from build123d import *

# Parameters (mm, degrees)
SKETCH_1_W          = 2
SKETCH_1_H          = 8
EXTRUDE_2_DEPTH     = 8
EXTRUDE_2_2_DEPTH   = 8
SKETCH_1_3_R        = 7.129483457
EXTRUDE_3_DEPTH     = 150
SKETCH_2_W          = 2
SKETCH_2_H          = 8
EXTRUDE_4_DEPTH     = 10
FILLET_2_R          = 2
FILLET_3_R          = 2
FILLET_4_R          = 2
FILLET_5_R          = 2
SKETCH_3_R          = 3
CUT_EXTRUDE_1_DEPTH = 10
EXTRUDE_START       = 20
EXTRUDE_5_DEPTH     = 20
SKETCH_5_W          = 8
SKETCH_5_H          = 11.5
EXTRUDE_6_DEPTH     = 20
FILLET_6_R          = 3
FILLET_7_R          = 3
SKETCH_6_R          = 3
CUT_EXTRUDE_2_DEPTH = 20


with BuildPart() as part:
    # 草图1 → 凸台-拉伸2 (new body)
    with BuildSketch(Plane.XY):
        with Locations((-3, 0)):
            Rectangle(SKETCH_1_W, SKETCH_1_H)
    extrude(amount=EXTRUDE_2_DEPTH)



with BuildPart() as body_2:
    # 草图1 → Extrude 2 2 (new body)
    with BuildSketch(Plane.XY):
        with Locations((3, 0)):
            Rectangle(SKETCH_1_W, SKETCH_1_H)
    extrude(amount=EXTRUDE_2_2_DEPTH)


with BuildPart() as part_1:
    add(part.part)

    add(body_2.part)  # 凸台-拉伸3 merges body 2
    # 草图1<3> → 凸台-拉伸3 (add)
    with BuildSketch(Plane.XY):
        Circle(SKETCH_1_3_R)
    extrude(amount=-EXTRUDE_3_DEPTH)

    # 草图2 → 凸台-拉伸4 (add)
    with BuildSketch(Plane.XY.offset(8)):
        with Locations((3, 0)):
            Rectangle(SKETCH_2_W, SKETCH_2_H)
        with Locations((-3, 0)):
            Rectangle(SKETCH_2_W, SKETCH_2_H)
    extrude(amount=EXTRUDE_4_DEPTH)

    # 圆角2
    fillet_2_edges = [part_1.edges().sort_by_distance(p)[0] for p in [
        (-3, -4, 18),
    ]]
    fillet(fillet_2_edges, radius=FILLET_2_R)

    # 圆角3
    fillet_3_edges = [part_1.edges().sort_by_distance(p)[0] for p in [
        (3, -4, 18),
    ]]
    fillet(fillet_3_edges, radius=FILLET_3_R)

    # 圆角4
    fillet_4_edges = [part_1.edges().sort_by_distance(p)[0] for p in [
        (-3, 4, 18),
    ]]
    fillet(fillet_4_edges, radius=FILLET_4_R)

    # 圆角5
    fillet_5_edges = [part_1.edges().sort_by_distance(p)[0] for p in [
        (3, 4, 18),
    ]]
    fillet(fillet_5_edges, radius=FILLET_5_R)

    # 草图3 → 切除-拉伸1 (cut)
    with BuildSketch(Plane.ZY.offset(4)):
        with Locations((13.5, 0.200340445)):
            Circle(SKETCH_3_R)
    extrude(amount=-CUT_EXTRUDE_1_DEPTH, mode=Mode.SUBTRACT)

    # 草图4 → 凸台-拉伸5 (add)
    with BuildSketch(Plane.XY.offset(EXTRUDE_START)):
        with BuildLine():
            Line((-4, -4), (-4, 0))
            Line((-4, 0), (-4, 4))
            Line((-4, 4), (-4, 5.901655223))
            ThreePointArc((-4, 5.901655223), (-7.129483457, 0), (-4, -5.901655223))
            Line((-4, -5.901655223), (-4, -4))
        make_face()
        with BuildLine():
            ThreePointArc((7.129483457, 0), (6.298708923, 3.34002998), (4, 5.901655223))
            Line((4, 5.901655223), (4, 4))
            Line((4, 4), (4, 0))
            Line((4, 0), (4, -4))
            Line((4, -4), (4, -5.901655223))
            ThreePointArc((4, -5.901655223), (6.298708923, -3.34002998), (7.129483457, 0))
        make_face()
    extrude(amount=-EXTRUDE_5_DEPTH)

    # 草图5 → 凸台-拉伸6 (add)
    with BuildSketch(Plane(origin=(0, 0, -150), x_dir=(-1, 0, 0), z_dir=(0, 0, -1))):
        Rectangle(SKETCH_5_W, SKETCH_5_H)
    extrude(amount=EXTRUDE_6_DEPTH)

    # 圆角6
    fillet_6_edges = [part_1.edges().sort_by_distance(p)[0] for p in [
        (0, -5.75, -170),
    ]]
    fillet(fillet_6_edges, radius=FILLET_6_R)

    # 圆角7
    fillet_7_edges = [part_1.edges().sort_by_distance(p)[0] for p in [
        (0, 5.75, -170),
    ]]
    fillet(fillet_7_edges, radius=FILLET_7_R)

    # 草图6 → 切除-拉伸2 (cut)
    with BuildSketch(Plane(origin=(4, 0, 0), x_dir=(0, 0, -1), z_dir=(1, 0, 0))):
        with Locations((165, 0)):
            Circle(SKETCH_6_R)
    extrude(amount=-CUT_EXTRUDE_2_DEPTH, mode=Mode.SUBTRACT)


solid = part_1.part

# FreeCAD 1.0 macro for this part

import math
import FreeCAD as App
import Part
import Sketcher
from FreeCAD import Vector


def edges_at(feature, points):
    """Names of the edges that pass closest to the given points."""
    edges = feature.Shape.Edges
    near = lambda p: min(range(len(edges)), key=lambda i: edges[i].distToShape(Part.Vertex(*p))[0])
    return sorted({f"Edge{near(p) + 1}" for p in points})

doc = App.newDocument("Part")
body = doc.addObject("PartDesign::Body", "Body")

# Sketch on XY plane
sketch1 = doc.addObject("Sketcher::SketchObject", "Sketch")
body.addObject(sketch1)
sketch1.AttachmentSupport = (doc.XY_Plane, [""])
sketch1.MapMode = "FlatFace"
sketch1.addGeometry(Part.LineSegment(Vector(-4, 4, 0), Vector(-4, -4, 0)), False)
sketch1.addGeometry(Part.LineSegment(Vector(-4, -4, 0), Vector(-2, -4, 0)), False)
sketch1.addGeometry(Part.LineSegment(Vector(-2, -4, 0), Vector(-2, 4, 0)), False)
sketch1.addGeometry(Part.LineSegment(Vector(-2, 4, 0), Vector(-4, 4, 0)), False)
sketch1.addConstraint(Sketcher.Constraint("Coincident", 0, 2, 1, 1))
sketch1.addConstraint(Sketcher.Constraint("Coincident", 1, 2, 2, 1))
sketch1.addConstraint(Sketcher.Constraint("Coincident", 2, 2, 3, 1))
sketch1.addConstraint(Sketcher.Constraint("Coincident", 3, 2, 0, 1))
sketch1.addConstraint(Sketcher.Constraint("Vertical", 0))
sketch1.addConstraint(Sketcher.Constraint("Horizontal", 1))
sketch1.addConstraint(Sketcher.Constraint("Vertical", 2))
sketch1.addConstraint(Sketcher.Constraint("Horizontal", 3))
sketch1.addConstraint(Sketcher.Constraint("DistanceX", 1, 1, 1, 2, 2.0))
sketch1.addConstraint(Sketcher.Constraint("DistanceY", 0, 2, 0, 1, 8.0))
sketch1.addConstraint(Sketcher.Constraint("DistanceX", 0, 2, -1, 1, 4.0))
sketch1.addConstraint(Sketcher.Constraint("DistanceY", 0, 2, -1, 1, 4.0))
pad1 = doc.addObject("PartDesign::Pad", "Pad")
body.addObject(pad1)
pad1.Profile = sketch1
pad1.Length = 8
body2 = doc.addObject("PartDesign::Body", "Body001")

# Sketch on XY plane
sketch2 = doc.addObject("Sketcher::SketchObject", "Sketch001")
body2.addObject(sketch2)
sketch2.AttachmentSupport = (doc.getObject("XY_Plane001"), [""])
sketch2.MapMode = "FlatFace"
sketch2.addGeometry(Part.LineSegment(Vector(2, 4, 0), Vector(2, -4, 0)), False)
sketch2.addGeometry(Part.LineSegment(Vector(2, -4, 0), Vector(4, -4, 0)), False)
sketch2.addGeometry(Part.LineSegment(Vector(4, -4, 0), Vector(4, 4, 0)), False)
sketch2.addGeometry(Part.LineSegment(Vector(4, 4, 0), Vector(2, 4, 0)), False)
sketch2.addConstraint(Sketcher.Constraint("Coincident", 0, 2, 1, 1))
sketch2.addConstraint(Sketcher.Constraint("Coincident", 1, 2, 2, 1))
sketch2.addConstraint(Sketcher.Constraint("Coincident", 2, 2, 3, 1))
sketch2.addConstraint(Sketcher.Constraint("Coincident", 3, 2, 0, 1))
sketch2.addConstraint(Sketcher.Constraint("Vertical", 0))
sketch2.addConstraint(Sketcher.Constraint("Horizontal", 1))
sketch2.addConstraint(Sketcher.Constraint("Vertical", 2))
sketch2.addConstraint(Sketcher.Constraint("Horizontal", 3))
sketch2.addConstraint(Sketcher.Constraint("DistanceX", 1, 1, 1, 2, 2.0))
sketch2.addConstraint(Sketcher.Constraint("DistanceY", 0, 2, 0, 1, 8.0))
sketch2.addConstraint(Sketcher.Constraint("DistanceX", -1, 1, 0, 2, 2.0))
sketch2.addConstraint(Sketcher.Constraint("DistanceY", 0, 2, -1, 1, 4.0))
pad2 = doc.addObject("PartDesign::Pad", "Pad001")
body2.addObject(pad2)
pad2.Profile = sketch2
pad2.Length = 8
body.AllowCompound = True
doc.recompute()

boolean = doc.addObject("PartDesign::Boolean", "Boolean")
body.addObject(boolean)
boolean.Type = "Fuse"
boolean.addObjects([body2])

# Sketch on XY plane
sketch3 = doc.addObject("Sketcher::SketchObject", "Sketch002")
body.addObject(sketch3)
sketch3.AttachmentSupport = (doc.XY_Plane, [""])
sketch3.MapMode = "FlatFace"
sketch3.addGeometry(Part.Circle(Vector(0, 0, 0), Vector(0, 0, 1), 7), False)
sketch3.addConstraint(Sketcher.Constraint("Coincident", 0, 3, -1, 1))
sketch3.addConstraint(Sketcher.Constraint("Diameter", 0, 14.258967))
pad3 = doc.addObject("PartDesign::Pad", "Pad002")
body.addObject(pad3)
pad3.Profile = sketch3
pad3.Length = 150
pad3.Reversed = True

# Sketch on XY plane
sketch4 = doc.addObject("Sketcher::SketchObject", "Sketch003")
body.addObject(sketch4)
sketch4.AttachmentSupport = (doc.XY_Plane, [""])
sketch4.MapMode = "FlatFace"
sketch4.AttachmentOffset = App.Placement(Vector(0, 0, 8), App.Rotation())
sketch4.addGeometry(Part.LineSegment(Vector(2, 4, 0), Vector(2, -4, 0)), False)
sketch4.addGeometry(Part.LineSegment(Vector(2, -4, 0), Vector(4, -4, 0)), False)
sketch4.addGeometry(Part.LineSegment(Vector(4, -4, 0), Vector(4, 4, 0)), False)
sketch4.addGeometry(Part.LineSegment(Vector(4, 4, 0), Vector(2, 4, 0)), False)
sketch4.addGeometry(Part.LineSegment(Vector(-4, 4, 0), Vector(-4, -4, 0)), False)
sketch4.addGeometry(Part.LineSegment(Vector(-4, -4, 0), Vector(-2, -4, 0)), False)
sketch4.addGeometry(Part.LineSegment(Vector(-2, -4, 0), Vector(-2, 4, 0)), False)
sketch4.addGeometry(Part.LineSegment(Vector(-2, 4, 0), Vector(-4, 4, 0)), False)
sketch4.addConstraint(Sketcher.Constraint("Coincident", 0, 2, 1, 1))
sketch4.addConstraint(Sketcher.Constraint("Coincident", 1, 2, 2, 1))
sketch4.addConstraint(Sketcher.Constraint("Coincident", 2, 2, 3, 1))
sketch4.addConstraint(Sketcher.Constraint("Coincident", 3, 2, 0, 1))
sketch4.addConstraint(Sketcher.Constraint("Coincident", 4, 2, 5, 1))
sketch4.addConstraint(Sketcher.Constraint("Coincident", 5, 2, 6, 1))
sketch4.addConstraint(Sketcher.Constraint("Coincident", 6, 2, 7, 1))
sketch4.addConstraint(Sketcher.Constraint("Coincident", 7, 2, 4, 1))
sketch4.addConstraint(Sketcher.Constraint("Vertical", 0))
sketch4.addConstraint(Sketcher.Constraint("Horizontal", 1))
sketch4.addConstraint(Sketcher.Constraint("Vertical", 2))
sketch4.addConstraint(Sketcher.Constraint("Horizontal", 3))
sketch4.addConstraint(Sketcher.Constraint("Vertical", 4))
sketch4.addConstraint(Sketcher.Constraint("Horizontal", 5))
sketch4.addConstraint(Sketcher.Constraint("Vertical", 6))
sketch4.addConstraint(Sketcher.Constraint("Horizontal", 7))
sketch4.addConstraint(Sketcher.Constraint("Symmetric", 2, 2, 4, 2, -1, 1))
sketch4.addConstraint(Sketcher.Constraint("Symmetric", 0, 2, 6, 2, -1, 1))
sketch4.addConstraint(Sketcher.Constraint("Horizontal", 1, 2, 4, 2))
sketch4.addConstraint(Sketcher.Constraint("DistanceX", 1, 1, 1, 2, 2.0))
sketch4.addConstraint(Sketcher.Constraint("DistanceY", 0, 2, 0, 1, 8.0))
sketch4.addConstraint(Sketcher.Constraint("DistanceX", -1, 1, 0, 2, 2.0))
pad4 = doc.addObject("PartDesign::Pad", "Pad003")
body.addObject(pad4)
pad4.Profile = sketch4
pad4.Length = 10
doc.recompute()

fillet = doc.addObject("PartDesign::Fillet", "Fillet")
body.addObject(fillet)
fillet.Base = (pad4, edges_at(pad4, [(-3, -4, 18)]))
fillet.Radius = 2
doc.recompute()

fillet2 = doc.addObject("PartDesign::Fillet", "Fillet001")
body.addObject(fillet2)
fillet2.Base = (fillet, edges_at(fillet, [(3, -4, 18)]))
fillet2.Radius = 2
doc.recompute()

fillet3 = doc.addObject("PartDesign::Fillet", "Fillet002")
body.addObject(fillet3)
fillet3.Base = (fillet2, edges_at(fillet2, [(-3, 4, 18)]))
fillet3.Radius = 2
doc.recompute()

fillet4 = doc.addObject("PartDesign::Fillet", "Fillet003")
body.addObject(fillet4)
fillet4.Base = (fillet3, edges_at(fillet3, [(3, 4, 18)]))
fillet4.Radius = 2

# Sketch on YZ plane
sketch5 = doc.addObject("Sketcher::SketchObject", "Sketch004")
body.addObject(sketch5)
sketch5.AttachmentSupport = (doc.YZ_Plane, [""])
sketch5.MapMode = "FlatFace"
sketch5.AttachmentOffset = App.Placement(Vector(0, 0, -4), App.Rotation())
sketch5.addGeometry(Part.Circle(Vector(0.2, 13.5, 0), Vector(0, 0, 1), 3), False)
sketch5.addConstraint(Sketcher.Constraint("Diameter", 0, 6.0))
sketch5.addConstraint(Sketcher.Constraint("DistanceY", -1, 1, 0, 3, 13.5))
sketch5.addConstraint(Sketcher.Constraint("DistanceX", -1, 1, 0, 3, 0.20034))
pocket1 = doc.addObject("PartDesign::Pocket", "Pocket")
body.addObject(pocket1)
pocket1.Profile = sketch5
pocket1.Length = 10
pocket1.Reversed = True

# Sketch on XY plane
sketch6 = doc.addObject("Sketcher::SketchObject", "Sketch005")
body.addObject(sketch6)
sketch6.AttachmentSupport = (doc.XY_Plane, [""])
sketch6.MapMode = "FlatFace"
sketch6.AttachmentOffset = App.Placement(Vector(0, 0, 20), App.Rotation())
sketch6.addGeometry(Part.ArcOfCircle(Part.Circle(Vector(0, 0, 0), Vector(0, 0, 1), 7), math.radians(124), math.radians(236)), False)
sketch6.addGeometry(Part.LineSegment(Vector(-4, -6, 0), Vector(-4, 6, 0)), False)
sketch6.addGeometry(Part.ArcOfCircle(Part.Circle(Vector(0, 0, 0), Vector(0, 0, 1), 7), math.radians(0), math.radians(56)), False)
sketch6.addGeometry(Part.LineSegment(Vector(4, 6, 0), Vector(4, -6, 0)), False)
sketch6.addGeometry(Part.ArcOfCircle(Part.Circle(Vector(0, 0, 0), Vector(0, 0, 1), 7), math.radians(-56), math.radians(0)), False)
sketch6.addConstraint(Sketcher.Constraint("Coincident", 0, 1, 1, 2))
sketch6.addConstraint(Sketcher.Constraint("Coincident", 1, 1, 0, 2))
sketch6.addConstraint(Sketcher.Constraint("Coincident", 2, 2, 3, 1))
sketch6.addConstraint(Sketcher.Constraint("Coincident", 3, 2, 4, 1))
sketch6.addConstraint(Sketcher.Constraint("Tangent", 4, 2, 2, 1))
sketch6.addConstraint(Sketcher.Constraint("Vertical", 1))
sketch6.addConstraint(Sketcher.Constraint("Vertical", 3))
sketch6.addConstraint(Sketcher.Constraint("Coincident", 0, 3, -1, 1))
sketch6.addConstraint(Sketcher.Constraint("Coincident", 2, 3, -1, 1))
sketch6.addConstraint(Sketcher.Constraint("Equal", 0, 2))
sketch6.addConstraint(Sketcher.Constraint("Equal", 2, 4))
sketch6.addConstraint(Sketcher.Constraint("PointOnObject", 4, 2, -1))
sketch6.addConstraint(Sketcher.Constraint("Horizontal", 0, 1, 2, 2))
sketch6.addConstraint(Sketcher.Constraint("DistanceX", 0, 1, -1, 1, 4.0))
sketch6.addConstraint(Sketcher.Constraint("Radius", 0, 7.129483))
pad5 = doc.addObject("PartDesign::Pad", "Pad004")
body.addObject(pad5)
pad5.Profile = sketch6
pad5.Length = 20
pad5.Reversed = True

# Sketch on XY plane
sketch7 = doc.addObject("Sketcher::SketchObject", "Sketch006")
body.addObject(sketch7)
sketch7.AttachmentSupport = (doc.XY_Plane, [""])
sketch7.MapMode = "FlatFace"
sketch7.AttachmentOffset = App.Placement(Vector(0, 0, -150), App.Rotation())
sketch7.addGeometry(Part.LineSegment(Vector(4, 6, 0), Vector(4, -6, 0)), False)
sketch7.addGeometry(Part.LineSegment(Vector(4, -6, 0), Vector(-4, -6, 0)), False)
sketch7.addGeometry(Part.LineSegment(Vector(-4, -6, 0), Vector(-4, 6, 0)), False)
sketch7.addGeometry(Part.LineSegment(Vector(-4, 6, 0), Vector(4, 6, 0)), False)
sketch7.addConstraint(Sketcher.Constraint("Coincident", 0, 2, 1, 1))
sketch7.addConstraint(Sketcher.Constraint("Coincident", 1, 2, 2, 1))
sketch7.addConstraint(Sketcher.Constraint("Coincident", 2, 2, 3, 1))
sketch7.addConstraint(Sketcher.Constraint("Coincident", 3, 2, 0, 1))
sketch7.addConstraint(Sketcher.Constraint("Vertical", 0))
sketch7.addConstraint(Sketcher.Constraint("Horizontal", 1))
sketch7.addConstraint(Sketcher.Constraint("Vertical", 2))
sketch7.addConstraint(Sketcher.Constraint("Horizontal", 3))
sketch7.addConstraint(Sketcher.Constraint("Symmetric", 0, 2, 2, 2, -1, 1))
sketch7.addConstraint(Sketcher.Constraint("DistanceX", 1, 2, 1, 1, 8.0))
sketch7.addConstraint(Sketcher.Constraint("DistanceY", 0, 2, 0, 1, 11.5))
pad6 = doc.addObject("PartDesign::Pad", "Pad005")
body.addObject(pad6)
pad6.Profile = sketch7
pad6.Length = 20
pad6.Reversed = True
doc.recompute()

fillet5 = doc.addObject("PartDesign::Fillet", "Fillet004")
body.addObject(fillet5)
fillet5.Base = (pad6, edges_at(pad6, [(0, -5.75, -170)]))
fillet5.Radius = 3
doc.recompute()

fillet6 = doc.addObject("PartDesign::Fillet", "Fillet005")
body.addObject(fillet6)
fillet6.Base = (fillet5, edges_at(fillet5, [(0, 5.75, -170)]))
fillet6.Radius = 3

# Sketch on YZ plane
sketch8 = doc.addObject("Sketcher::SketchObject", "Sketch007")
body.addObject(sketch8)
sketch8.AttachmentSupport = (doc.YZ_Plane, [""])
sketch8.MapMode = "FlatFace"
sketch8.AttachmentOffset = App.Placement(Vector(0, 0, 4), App.Rotation())
sketch8.addGeometry(Part.Circle(Vector(0, -165, 0), Vector(0, 0, 1), 3), False)
sketch8.addConstraint(Sketcher.Constraint("PointOnObject", 0, 3, -2))
sketch8.addConstraint(Sketcher.Constraint("Diameter", 0, 6.0))
sketch8.addConstraint(Sketcher.Constraint("DistanceY", 0, 3, -1, 1, 165.0))
pocket2 = doc.addObject("PartDesign::Pocket", "Pocket001")
body.addObject(pocket2)
pocket2.Profile = sketch8
pocket2.Length = 20

doc.recompute()
